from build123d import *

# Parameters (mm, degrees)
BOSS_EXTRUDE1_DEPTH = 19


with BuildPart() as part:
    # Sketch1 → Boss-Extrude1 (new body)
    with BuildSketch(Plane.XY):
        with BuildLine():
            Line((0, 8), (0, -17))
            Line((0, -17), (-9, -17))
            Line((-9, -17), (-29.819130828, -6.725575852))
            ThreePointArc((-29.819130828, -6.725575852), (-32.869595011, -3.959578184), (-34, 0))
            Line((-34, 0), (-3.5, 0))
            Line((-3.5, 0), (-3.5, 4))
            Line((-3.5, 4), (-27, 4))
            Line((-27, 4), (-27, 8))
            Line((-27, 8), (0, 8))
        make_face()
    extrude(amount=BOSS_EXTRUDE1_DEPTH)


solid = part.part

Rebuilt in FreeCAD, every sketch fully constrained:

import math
import FreeCAD as App
import Part
import Sketcher
from FreeCAD import Vector

doc = App.newDocument("Part")
body = doc.addObject("PartDesign::Body", "Body")

# Sketch on XY plane
sketch1 = body.newObject("Sketcher::SketchObject", "Sketch")
sketch1.AttachmentSupport = (doc.getObject("XY_Plane"), [""])
sketch1.MapMode = "FlatFace"
sketch1.addGeometry(Part.LineSegment(Vector(0, -17, 0), Vector(0, 8, 0)), False)
sketch1.addGeometry(Part.LineSegment(Vector(0, 8, 0), Vector(-27, 8, 0)), False)
sketch1.addGeometry(Part.LineSegment(Vector(-27, 8, 0), Vector(-27, 4, 0)), False)
sketch1.addGeometry(Part.LineSegment(Vector(-27, 4, 0), Vector(-3.5, 4, 0)), False)
sketch1.addGeometry(Part.LineSegment(Vector(-3.5, 4, 0), Vector(-3.5, 0, 0)), False)
sketch1.addGeometry(Part.LineSegment(Vector(-3.5, 0, 0), Vector(-34, 0, 0)), False)
sketch1.addGeometry(Part.ArcOfCircle(Part.Circle(Vector(-26.5, 0, 0), Vector(0, 0, 1), 7.5), math.radians(180), math.radians(244)), False)
sketch1.addGeometry(Part.LineSegment(Vector(-29.8, -6.7, 0), Vector(-9, -17, 0)), False)
sketch1.addGeometry(Part.LineSegment(Vector(-9, -17, 0), Vector(0, -17, 0)), False)
sketch1.addConstraint(Sketcher.Constraint("Coincident", 0, 2, 1, 1))
sketch1.addConstraint(Sketcher.Constraint("Coincident", 1, 2, 2, 1))
sketch1.addConstraint(Sketcher.Constraint("Coincident", 2, 2, 3, 1))
sketch1.addConstraint(Sketcher.Constraint("Coincident", 3, 2, 4, 1))
sketch1.addConstraint(Sketcher.Constraint("Coincident", 4, 2, 5, 1))
sketch1.addConstraint(Sketcher.Constraint("Coincident", 5, 2, 6, 1))
sketch1.addConstraint(Sketcher.Constraint("Tangent", 6, 2, 7, 1))
sketch1.addConstraint(Sketcher.Constraint("Coincident", 7, 2, 8, 1))
sketch1.addConstraint(Sketcher.Constraint("Coincident", 8, 2, 0, 1))
sketch1.addConstraint(Sketcher.Constraint("Vertical", 0))
sketch1.addConstraint(Sketcher.Constraint("Horizontal", 1))
sketch1.addConstraint(Sketcher.Constraint("Vertical", 2))
sketch1.addConstraint(Sketcher.Constraint("Horizontal", 3))
sketch1.addConstraint(Sketcher.Constraint("Vertical", 4))
sketch1.addConstraint(Sketcher.Constraint("Horizontal", 5))
sketch1.addConstraint(Sketcher.Constraint("Horizontal", 8))
sketch1.addConstraint(Sketcher.Constraint("PointOnObject", 6, 3, -1))
sketch1.addConstraint(Sketcher.Constraint("PointOnObject", 0, 2, -2))
sketch1.addConstraint(Sketcher.Constraint("PointOnObject", 4, 2, -1))
sketch1.addConstraint(Sketcher.Constraint("Equal", 2, 4))
sketch1.addConstraint(Sketcher.Constraint("Radius", 6, 7.5))
sketch1.addConstraint(Sketcher.Constraint("DistanceX", 1, 2, 1, 1, 27.0))
sketch1.addConstraint(Sketcher.Constraint("DistanceX", 8, 1, 8, 2, 9.0))
sketch1.addConstraint(Sketcher.Constraint("DistanceY", 0, 1, 0, 2, 25.0))
sketch1.addConstraint(Sketcher.Constraint("DistanceY", 2, 2, 2, 1, 4.0))
sketch1.addConstraint(Sketcher.Constraint("DistanceX", 3, 1, 3, 2, 23.5))
sketch1.addConstraint(Sketcher.Constraint("DistanceX", 5, 2, 5, 1, 30.5))
pad1 = body.newObject("PartDesign::Pad", "Pad")
pad1.Profile = sketch1
pad1.Length = 19

doc.recompute()
